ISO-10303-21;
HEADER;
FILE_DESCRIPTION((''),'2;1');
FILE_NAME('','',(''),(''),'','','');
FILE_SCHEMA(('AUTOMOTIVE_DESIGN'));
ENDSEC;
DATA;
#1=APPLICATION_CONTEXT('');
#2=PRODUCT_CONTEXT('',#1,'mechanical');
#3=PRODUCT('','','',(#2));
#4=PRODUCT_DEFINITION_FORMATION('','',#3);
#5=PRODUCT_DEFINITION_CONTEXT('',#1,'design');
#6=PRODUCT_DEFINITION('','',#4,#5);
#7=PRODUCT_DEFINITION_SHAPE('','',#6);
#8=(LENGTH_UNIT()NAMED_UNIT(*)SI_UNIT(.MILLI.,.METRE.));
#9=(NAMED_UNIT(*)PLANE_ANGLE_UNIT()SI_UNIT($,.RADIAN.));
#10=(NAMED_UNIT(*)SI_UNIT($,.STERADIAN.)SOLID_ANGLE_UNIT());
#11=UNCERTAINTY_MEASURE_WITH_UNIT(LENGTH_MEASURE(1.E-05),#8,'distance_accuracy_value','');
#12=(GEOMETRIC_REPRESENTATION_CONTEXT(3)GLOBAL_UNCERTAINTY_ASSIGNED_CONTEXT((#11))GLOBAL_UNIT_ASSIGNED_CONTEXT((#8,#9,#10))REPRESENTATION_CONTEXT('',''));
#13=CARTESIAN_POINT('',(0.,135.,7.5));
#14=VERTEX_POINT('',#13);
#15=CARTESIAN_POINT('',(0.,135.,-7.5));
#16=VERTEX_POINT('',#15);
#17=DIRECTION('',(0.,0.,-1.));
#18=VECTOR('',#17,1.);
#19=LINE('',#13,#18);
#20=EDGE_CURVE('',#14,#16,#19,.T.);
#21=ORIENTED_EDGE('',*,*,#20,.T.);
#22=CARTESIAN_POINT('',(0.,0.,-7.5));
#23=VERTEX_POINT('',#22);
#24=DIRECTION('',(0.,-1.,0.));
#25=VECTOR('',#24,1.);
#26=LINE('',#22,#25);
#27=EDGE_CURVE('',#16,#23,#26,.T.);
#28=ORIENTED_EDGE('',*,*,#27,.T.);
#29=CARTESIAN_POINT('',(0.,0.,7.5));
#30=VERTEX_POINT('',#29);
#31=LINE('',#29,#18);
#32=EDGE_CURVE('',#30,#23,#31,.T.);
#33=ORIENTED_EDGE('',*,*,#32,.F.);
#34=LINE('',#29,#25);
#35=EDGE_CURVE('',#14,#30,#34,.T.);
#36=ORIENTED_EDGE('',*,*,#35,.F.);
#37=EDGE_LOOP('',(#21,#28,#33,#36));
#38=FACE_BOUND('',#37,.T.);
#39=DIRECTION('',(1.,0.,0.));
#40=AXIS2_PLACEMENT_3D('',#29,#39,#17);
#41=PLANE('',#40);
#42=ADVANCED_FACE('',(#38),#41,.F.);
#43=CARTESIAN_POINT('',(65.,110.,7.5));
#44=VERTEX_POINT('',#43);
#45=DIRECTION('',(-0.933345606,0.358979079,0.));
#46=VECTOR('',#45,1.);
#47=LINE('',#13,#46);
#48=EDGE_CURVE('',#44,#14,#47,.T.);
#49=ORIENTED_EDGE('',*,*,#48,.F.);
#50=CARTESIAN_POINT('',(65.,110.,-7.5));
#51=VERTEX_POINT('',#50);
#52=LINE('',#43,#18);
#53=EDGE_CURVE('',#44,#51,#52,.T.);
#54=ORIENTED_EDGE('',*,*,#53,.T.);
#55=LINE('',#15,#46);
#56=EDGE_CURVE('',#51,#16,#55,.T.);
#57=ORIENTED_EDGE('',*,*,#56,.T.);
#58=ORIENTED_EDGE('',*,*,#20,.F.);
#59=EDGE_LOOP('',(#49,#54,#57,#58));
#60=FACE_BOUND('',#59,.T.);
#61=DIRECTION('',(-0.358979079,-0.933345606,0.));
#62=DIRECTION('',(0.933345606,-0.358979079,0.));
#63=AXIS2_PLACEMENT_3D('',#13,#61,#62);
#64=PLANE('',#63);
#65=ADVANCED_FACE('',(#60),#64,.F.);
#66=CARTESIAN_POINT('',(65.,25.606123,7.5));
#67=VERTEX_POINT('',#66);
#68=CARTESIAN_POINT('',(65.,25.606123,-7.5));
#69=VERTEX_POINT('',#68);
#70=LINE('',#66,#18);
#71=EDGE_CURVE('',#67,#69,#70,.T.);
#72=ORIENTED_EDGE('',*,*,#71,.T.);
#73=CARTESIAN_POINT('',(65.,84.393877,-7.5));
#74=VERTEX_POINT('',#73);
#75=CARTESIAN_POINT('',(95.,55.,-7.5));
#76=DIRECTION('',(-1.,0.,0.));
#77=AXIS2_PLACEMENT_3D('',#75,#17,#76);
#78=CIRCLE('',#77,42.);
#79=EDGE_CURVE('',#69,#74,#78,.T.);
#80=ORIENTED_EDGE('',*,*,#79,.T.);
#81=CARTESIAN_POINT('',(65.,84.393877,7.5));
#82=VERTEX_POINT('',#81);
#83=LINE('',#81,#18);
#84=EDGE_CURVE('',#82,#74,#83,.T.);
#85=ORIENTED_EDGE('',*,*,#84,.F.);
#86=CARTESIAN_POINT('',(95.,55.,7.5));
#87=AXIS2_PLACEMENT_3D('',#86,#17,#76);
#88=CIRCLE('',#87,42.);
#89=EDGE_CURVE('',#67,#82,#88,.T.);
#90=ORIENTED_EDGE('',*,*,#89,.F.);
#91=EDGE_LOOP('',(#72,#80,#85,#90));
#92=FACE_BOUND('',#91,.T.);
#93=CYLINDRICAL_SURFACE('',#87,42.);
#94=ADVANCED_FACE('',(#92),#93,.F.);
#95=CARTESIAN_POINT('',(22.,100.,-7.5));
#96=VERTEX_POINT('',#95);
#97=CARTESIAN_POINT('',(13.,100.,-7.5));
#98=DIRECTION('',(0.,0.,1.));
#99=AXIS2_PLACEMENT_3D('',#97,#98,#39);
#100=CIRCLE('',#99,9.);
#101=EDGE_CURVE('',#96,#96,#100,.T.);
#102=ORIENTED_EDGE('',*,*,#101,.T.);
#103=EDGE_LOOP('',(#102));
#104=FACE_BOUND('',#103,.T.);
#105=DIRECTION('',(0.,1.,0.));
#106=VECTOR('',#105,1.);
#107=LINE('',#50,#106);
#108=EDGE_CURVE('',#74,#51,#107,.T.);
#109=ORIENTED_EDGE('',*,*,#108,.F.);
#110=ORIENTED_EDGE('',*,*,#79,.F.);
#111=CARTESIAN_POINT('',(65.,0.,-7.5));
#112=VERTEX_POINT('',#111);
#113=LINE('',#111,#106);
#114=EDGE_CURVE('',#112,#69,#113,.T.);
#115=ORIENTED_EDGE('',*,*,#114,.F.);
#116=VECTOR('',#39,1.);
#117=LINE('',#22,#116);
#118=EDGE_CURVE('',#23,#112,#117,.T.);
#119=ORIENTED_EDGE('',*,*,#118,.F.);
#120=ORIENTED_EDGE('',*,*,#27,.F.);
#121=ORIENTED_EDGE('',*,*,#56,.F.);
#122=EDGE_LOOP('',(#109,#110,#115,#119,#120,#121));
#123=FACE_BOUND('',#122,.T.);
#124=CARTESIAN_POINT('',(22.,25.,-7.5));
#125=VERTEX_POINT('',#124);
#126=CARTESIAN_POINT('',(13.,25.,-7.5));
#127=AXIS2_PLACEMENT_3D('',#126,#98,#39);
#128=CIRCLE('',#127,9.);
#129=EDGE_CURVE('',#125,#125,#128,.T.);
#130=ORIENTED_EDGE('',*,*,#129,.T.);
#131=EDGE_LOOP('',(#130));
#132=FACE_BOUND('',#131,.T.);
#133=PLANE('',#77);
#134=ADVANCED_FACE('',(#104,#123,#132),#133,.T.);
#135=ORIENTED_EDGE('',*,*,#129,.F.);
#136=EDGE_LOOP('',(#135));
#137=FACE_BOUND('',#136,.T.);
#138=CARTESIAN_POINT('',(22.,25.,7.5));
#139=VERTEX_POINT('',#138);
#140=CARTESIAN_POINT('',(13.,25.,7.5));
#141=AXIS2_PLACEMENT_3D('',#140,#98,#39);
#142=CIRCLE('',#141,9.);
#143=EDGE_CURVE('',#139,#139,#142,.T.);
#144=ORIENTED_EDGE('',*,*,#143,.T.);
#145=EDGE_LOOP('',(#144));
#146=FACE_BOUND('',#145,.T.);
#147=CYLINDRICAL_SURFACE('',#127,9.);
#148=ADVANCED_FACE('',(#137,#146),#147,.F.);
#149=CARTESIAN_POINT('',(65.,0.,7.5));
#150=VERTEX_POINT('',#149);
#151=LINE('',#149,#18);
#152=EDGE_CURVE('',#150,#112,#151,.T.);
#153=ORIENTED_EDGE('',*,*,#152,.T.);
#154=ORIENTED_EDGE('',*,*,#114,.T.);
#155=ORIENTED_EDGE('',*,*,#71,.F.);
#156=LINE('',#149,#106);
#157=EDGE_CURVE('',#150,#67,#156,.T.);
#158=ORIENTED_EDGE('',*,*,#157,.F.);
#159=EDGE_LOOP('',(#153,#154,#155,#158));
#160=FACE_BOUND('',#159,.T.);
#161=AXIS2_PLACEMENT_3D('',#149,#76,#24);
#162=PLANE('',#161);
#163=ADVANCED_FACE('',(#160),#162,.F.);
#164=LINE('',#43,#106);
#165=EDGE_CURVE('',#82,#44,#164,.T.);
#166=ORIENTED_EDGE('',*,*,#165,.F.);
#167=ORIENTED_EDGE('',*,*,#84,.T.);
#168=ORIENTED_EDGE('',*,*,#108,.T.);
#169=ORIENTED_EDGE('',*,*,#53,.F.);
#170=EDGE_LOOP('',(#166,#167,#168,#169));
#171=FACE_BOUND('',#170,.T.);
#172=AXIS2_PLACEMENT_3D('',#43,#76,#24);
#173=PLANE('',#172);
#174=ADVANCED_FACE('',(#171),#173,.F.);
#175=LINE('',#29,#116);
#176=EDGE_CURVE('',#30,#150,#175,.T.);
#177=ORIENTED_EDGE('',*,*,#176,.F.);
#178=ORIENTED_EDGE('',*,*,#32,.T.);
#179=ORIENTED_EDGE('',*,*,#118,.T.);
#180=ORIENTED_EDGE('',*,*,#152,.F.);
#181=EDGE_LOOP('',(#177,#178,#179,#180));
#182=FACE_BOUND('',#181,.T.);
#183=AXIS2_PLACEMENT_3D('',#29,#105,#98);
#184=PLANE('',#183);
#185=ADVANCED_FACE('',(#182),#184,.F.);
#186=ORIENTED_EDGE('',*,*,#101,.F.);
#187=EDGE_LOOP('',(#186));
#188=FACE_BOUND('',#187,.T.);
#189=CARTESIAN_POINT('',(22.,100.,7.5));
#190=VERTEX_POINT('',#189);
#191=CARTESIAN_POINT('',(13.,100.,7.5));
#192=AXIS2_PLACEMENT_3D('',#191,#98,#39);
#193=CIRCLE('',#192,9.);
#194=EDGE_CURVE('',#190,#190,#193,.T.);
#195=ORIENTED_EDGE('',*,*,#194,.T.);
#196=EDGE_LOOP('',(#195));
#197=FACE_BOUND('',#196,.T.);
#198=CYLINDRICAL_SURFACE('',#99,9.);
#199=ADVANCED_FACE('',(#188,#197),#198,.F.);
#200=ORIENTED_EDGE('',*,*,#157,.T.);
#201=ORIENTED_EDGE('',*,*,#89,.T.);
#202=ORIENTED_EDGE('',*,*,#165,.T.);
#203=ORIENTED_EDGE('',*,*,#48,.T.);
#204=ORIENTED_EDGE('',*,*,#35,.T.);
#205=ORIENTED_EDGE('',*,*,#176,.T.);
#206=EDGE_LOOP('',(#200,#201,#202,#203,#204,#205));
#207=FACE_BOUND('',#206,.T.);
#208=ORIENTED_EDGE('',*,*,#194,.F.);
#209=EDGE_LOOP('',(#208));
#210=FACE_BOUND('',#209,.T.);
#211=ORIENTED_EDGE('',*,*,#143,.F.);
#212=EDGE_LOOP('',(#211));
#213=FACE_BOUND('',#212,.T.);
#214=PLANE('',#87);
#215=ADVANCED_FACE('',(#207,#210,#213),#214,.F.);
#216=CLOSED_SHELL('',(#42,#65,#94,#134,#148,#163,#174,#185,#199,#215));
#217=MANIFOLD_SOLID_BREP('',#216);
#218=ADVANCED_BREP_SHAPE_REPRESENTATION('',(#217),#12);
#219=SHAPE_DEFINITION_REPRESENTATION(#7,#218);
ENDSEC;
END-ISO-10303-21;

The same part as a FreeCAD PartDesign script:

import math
import FreeCAD as App
import Part
import Sketcher

V = App.Vector
Q = App.Units.Quantity

doc = App.newDocument("Part")
params = doc.addObject("Spreadsheet::Sheet", "Params")
for row, (alias, value) in enumerate([
    ("sketch1_radius", "42 mm"),
    ("sketch1_width", "65 mm"),
    ("sketch1_height", "135 mm"),
    ("pad1_length", "15 mm"),
    ("sketch2_diameter", "18 mm"),
], start=1):
    params.set(f"A{row}", alias)
    params.set(f"B{row}", "=" + value)
    params.setAlias(f"B{row}", alias)

body = doc.addObject("PartDesign::Body", "Body")

sketch1 = doc.addObject("Sketcher::SketchObject", "Sketch")
body.addObject(sketch1)
sketch1.AttachmentSupport = (doc.XY_Plane, [""])
sketch1.MapMode = "FlatFace"
sketch1.addGeometry([
    Part.LineSegment(V(0, 135, 0), V(0, 0, 0)),
    Part.LineSegment(V(0, 0, 0), V(65, 0, 0)),
    Part.LineSegment(V(65, 0, 0), V(65, 26, 0)),
    Part.ArcOfCircle(Part.Circle(V(95, 55, 0), V(0, 0, 1), 42), math.radians(136), math.radians(224)),
    Part.LineSegment(V(65, 84, 0), V(65, 110, 0)),
    Part.LineSegment(V(65, 110, 0), V(0, 135, 0)),
], False)
sketch1.addConstraint([
    Sketcher.Constraint("Coincident", 0, 2, 1, 1),
    Sketcher.Constraint("Coincident", 1, 2, 2, 1),
    Sketcher.Constraint("Coincident", 2, 2, 3, 2),
    Sketcher.Constraint("Coincident", 3, 1, 4, 1),
    Sketcher.Constraint("Coincident", 4, 2, 5, 1),
    Sketcher.Constraint("Coincident", 5, 2, 0, 1),
    Sketcher.Constraint("Vertical", 0),
    Sketcher.Constraint("Horizontal", 1),
    Sketcher.Constraint("Vertical", 2),
    Sketcher.Constraint("Vertical", 4),
    Sketcher.Constraint("Coincident", 0, 2, -1, 1),
    Sketcher.Constraint("Vertical", 2, 2, 3, 1),
    Sketcher.Constraint("Equal", 2, 4),
    Sketcher.Constraint("Radius", 3, Q("42 mm")),
    Sketcher.Constraint("DistanceX", 1, 1, 1, 2, Q("65 mm")),
    Sketcher.Constraint("DistanceY", 0, 2, 0, 1, Q("135 mm")),
    Sketcher.Constraint("DistanceX", -1, 1, 3, 3, Q("95 mm")),
    Sketcher.Constraint("DistanceY", -1, 1, 3, 3, Q("55 mm")),
])
sketch1.setExpression("Constraints[13]", "Params.sketch1_radius")
sketch1.setExpression("Constraints[14]", "Params.sketch1_width")
sketch1.setExpression("Constraints[15]", "Params.sketch1_height")
pad1 = doc.addObject("PartDesign::Pad", "Pad")
body.addObject(pad1)
pad1.Profile = sketch1
pad1.setExpression("Length", "Params.pad1_length")
pad1.Midplane = True

sketch2 = doc.addObject("Sketcher::SketchObject", "Sketch001")
body.addObject(sketch2)
sketch2.AttachmentSupport = (doc.XY_Plane, [""])
sketch2.MapMode = "FlatFace"
sketch2.AttachmentOffset = App.Placement(V(0, 0, 7.5), App.Rotation())
sketch2.addGeometry([
    Part.Circle(V(13, 100, 0), V(0, 0, 1), 9),
    Part.Circle(V(13, 25, 0), V(0, 0, 1), 9),
], False)
sketch2.addConstraint([
    Sketcher.Constraint("Equal", 0, 1),
    Sketcher.Constraint("Vertical", 0, 3, 1, 3),
    Sketcher.Constraint("Diameter", 0, Q("18 mm")),
    Sketcher.Constraint("DistanceX", -1, 1, 0, 3, Q("13 mm")),
    Sketcher.Constraint("DistanceY", -1, 1, 0, 3, Q("100 mm")),
    Sketcher.Constraint("DistanceY", -1, 1, 1, 3, Q("25 mm")),
])
sketch2.setExpression("Constraints[2]", "Params.sketch2_diameter")
pocket1 = doc.addObject("PartDesign::Pocket", "Pocket")
body.addObject(pocket1)
pocket1.Profile = sketch2
pocket1.Type = "ThroughAll"

doc.recompute()
